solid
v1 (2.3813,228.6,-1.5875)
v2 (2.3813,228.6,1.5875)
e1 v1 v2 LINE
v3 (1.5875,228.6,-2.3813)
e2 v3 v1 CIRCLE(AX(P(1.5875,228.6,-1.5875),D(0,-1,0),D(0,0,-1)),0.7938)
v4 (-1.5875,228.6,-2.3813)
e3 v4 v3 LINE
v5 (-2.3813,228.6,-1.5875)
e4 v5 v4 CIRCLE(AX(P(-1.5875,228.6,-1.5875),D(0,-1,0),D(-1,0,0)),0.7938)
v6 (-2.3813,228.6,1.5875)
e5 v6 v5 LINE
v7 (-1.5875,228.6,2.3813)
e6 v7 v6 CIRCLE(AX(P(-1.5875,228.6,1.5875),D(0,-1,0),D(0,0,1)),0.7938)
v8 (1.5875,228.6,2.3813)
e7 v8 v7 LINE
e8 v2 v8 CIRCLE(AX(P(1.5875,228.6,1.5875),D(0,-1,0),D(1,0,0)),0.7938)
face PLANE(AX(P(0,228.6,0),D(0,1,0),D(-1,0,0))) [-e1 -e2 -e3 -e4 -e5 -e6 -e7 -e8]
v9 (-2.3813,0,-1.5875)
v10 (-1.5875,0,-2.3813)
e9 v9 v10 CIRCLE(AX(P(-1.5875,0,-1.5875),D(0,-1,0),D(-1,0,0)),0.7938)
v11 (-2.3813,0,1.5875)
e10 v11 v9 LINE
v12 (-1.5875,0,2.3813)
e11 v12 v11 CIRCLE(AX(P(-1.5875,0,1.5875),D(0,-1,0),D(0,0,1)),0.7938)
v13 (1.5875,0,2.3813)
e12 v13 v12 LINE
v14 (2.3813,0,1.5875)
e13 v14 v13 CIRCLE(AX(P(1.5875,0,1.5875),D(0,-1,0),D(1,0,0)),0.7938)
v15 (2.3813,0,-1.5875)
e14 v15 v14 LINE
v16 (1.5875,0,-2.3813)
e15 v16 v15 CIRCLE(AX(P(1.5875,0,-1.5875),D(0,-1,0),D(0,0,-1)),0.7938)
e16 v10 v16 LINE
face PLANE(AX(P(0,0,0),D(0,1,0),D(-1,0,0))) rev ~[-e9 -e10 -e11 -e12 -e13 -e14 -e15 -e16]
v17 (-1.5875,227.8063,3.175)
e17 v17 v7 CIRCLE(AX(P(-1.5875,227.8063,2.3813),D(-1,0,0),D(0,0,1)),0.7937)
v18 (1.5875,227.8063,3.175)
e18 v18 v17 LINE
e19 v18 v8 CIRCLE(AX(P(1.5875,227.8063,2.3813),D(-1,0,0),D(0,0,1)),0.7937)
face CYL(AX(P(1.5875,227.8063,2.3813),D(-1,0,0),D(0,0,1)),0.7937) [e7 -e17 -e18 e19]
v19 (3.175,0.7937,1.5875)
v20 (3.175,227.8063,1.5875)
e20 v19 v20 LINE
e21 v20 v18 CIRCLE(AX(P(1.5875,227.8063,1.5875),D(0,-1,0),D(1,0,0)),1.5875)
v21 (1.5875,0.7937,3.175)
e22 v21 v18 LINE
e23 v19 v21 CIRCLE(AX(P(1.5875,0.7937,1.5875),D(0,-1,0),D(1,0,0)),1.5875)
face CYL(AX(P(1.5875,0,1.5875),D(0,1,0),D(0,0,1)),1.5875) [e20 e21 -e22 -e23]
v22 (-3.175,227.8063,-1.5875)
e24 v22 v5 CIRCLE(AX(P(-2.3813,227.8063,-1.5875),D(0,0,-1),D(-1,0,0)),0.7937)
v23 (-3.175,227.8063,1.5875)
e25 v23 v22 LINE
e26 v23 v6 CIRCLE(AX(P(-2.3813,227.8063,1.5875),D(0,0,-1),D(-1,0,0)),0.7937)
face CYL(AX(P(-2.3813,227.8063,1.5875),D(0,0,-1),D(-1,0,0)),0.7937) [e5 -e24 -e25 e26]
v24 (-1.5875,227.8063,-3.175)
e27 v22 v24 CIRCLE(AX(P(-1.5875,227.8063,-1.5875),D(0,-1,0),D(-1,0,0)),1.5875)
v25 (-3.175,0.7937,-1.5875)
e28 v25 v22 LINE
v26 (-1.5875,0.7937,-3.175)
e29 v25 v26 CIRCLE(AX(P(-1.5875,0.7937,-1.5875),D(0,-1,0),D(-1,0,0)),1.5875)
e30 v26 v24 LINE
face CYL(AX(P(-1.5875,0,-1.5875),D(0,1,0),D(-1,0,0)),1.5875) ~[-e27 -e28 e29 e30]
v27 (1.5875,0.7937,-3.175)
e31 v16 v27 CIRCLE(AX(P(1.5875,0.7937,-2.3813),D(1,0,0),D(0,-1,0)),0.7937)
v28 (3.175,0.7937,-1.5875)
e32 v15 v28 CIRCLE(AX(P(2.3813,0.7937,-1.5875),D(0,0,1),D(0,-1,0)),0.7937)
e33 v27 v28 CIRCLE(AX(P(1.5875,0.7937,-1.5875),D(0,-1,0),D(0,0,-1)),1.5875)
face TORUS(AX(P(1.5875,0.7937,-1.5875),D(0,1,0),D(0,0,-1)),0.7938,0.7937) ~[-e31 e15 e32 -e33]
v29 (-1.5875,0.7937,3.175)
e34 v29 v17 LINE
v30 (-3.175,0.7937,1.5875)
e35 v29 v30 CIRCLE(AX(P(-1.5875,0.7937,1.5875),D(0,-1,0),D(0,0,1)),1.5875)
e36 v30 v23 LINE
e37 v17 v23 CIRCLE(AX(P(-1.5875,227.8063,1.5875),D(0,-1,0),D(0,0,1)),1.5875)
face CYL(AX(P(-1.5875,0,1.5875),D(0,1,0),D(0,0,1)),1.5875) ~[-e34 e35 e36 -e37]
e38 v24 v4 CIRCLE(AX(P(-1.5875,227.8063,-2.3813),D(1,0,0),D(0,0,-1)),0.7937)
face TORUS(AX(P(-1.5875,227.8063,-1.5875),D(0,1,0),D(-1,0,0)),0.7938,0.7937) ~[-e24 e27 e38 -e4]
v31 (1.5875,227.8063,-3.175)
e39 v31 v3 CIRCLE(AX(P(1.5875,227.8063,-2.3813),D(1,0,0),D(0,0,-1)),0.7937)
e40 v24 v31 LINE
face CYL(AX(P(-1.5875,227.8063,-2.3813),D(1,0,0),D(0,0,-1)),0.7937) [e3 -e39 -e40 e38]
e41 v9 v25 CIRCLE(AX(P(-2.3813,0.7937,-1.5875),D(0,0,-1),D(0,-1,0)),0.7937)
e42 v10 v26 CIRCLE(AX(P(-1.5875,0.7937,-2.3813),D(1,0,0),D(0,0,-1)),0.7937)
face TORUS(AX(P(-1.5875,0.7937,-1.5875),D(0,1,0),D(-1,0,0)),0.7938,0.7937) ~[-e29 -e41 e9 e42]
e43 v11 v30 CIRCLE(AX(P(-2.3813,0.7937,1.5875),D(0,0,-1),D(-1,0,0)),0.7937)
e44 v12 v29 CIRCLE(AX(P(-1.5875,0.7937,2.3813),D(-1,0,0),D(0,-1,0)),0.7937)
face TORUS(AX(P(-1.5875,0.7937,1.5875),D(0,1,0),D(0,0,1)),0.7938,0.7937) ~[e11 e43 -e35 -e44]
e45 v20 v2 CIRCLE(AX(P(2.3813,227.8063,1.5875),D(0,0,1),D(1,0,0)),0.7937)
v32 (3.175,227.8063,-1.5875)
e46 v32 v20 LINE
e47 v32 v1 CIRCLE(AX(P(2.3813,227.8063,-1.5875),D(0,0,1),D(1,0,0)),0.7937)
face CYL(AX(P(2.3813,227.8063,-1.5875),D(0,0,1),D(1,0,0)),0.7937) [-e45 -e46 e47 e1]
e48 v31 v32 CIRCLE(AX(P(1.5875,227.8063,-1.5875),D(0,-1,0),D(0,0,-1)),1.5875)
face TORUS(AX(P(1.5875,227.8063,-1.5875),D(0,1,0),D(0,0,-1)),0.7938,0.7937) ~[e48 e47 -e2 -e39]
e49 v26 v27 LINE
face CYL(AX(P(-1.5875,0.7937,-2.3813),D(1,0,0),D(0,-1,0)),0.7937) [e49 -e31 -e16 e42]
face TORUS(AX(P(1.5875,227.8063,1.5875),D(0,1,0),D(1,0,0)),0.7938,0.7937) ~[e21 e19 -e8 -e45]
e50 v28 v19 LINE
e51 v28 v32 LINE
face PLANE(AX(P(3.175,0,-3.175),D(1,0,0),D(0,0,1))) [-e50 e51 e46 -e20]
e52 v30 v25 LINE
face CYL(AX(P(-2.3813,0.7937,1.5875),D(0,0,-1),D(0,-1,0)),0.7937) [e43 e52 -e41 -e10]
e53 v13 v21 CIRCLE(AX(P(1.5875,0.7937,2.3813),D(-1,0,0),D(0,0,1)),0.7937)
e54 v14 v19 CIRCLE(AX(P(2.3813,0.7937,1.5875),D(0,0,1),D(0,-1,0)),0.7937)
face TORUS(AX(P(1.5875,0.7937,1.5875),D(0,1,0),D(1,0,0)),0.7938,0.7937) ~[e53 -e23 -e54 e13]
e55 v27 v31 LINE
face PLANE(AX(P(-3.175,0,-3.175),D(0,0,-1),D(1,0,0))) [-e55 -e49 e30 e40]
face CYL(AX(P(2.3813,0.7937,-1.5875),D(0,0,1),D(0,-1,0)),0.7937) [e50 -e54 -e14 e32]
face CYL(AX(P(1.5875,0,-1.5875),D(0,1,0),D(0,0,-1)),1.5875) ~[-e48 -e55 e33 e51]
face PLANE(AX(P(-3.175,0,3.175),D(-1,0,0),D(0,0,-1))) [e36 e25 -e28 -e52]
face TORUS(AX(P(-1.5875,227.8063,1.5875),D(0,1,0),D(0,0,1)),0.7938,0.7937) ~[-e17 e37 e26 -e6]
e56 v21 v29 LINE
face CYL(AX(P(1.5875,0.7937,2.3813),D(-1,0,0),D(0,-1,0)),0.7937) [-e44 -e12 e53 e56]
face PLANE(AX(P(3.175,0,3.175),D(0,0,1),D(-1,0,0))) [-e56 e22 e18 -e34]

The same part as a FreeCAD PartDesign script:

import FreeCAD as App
import Part
import Sketcher
Q = App.Units.Quantity


def edges_at(feature, points):
    """Names of the edges that pass closest to the given points."""
    edges = feature.Shape.Edges
    near = lambda p: min(range(len(edges)), key=lambda i: edges[i].distToShape(Part.Vertex(*p))[0])
    return sorted({f"Edge{near(p) + 1}" for p in points})


def add_polygon(sketch, points):
    """Adds a closed chain of lines whose ends are joined by coincident constraints."""
    first, n = sketch.GeometryCount, len(points)
    for a, b in zip(points, points[1:] + points[:1]):
        sketch.addGeometry(Part.LineSegment(App.Vector(*a, 0), App.Vector(*b, 0)), False)
    for i in range(n):
        sketch.addConstraint(Sketcher.Constraint("Coincident", first + i, 2, first + (i + 1) % n, 1))

doc = App.newDocument("Part")
body = doc.addObject("PartDesign::Body", "Body")

sketch1 = body.newObject("Sketcher::SketchObject", "Sketch")
sketch1.AttachmentSupport = (doc.getObject("XZ_Plane"), [""])
sketch1.MapMode = "FlatFace"
add_polygon(sketch1, [(-3, 3), (3, 3), (3, -3), (-3, -3)])
sketch1.addConstraint(Sketcher.Constraint("Horizontal", 0))
sketch1.addConstraint(Sketcher.Constraint("Vertical", 1))
sketch1.addConstraint(Sketcher.Constraint("Horizontal", 2))
sketch1.addConstraint(Sketcher.Constraint("Vertical", 3))
sketch1.addConstraint(Sketcher.Constraint("Symmetric", 0, 2, 2, 2, -1, 1))
sketch1.addConstraint(Sketcher.Constraint("Equal", 2, 1))
sketch1.addConstraint(Sketcher.Constraint("DistanceX", 0, 1, 0, 2, Q("0.25 in")))
pad1 = body.newObject("PartDesign::Pad", "Pad")
pad1.Profile = sketch1
pad1.Length = Q("9 in")
pad1.Reversed = True
doc.recompute()

fillet = body.newObject("PartDesign::Fillet", "Fillet")
fillet.Base = (pad1, edges_at(pad1, [
    (3.175, 114.3, -3.175),
    (3.175, 114.3, 3.175),
    (-3.175, 114.3, 3.175),
    (-3.175, 114.3, -3.175),
]))
fillet.Radius = Q("0.0625 in")
doc.recompute()

fillet2 = body.newObject("PartDesign::Fillet", "Fillet001")
fillet2.Base = (fillet, edges_at(fillet, [
    (3.175, 0, 0),
    (2.71, 0, -2.71),
    (0, 0, -3.175),
    (-2.71, 0, -2.71),
    (-3.175, 0, 0),
    (-2.71, 0, 2.71),
    (0, 0, 3.175),
    (2.71, 0, 2.71),
    (0, 228.6, 3.175),
    (-2.71, 228.6, 2.71),
    (-3.175, 228.6, 0),
    (-2.71, 228.6, -2.71),
    (0, 228.6, -3.175),
    (2.71, 228.6, -2.71),
    (3.175, 228.6, 0),
    (2.71, 228.6, 2.71),
]))
fillet2.Radius = Q("0.031248 in")

doc.recompute()
